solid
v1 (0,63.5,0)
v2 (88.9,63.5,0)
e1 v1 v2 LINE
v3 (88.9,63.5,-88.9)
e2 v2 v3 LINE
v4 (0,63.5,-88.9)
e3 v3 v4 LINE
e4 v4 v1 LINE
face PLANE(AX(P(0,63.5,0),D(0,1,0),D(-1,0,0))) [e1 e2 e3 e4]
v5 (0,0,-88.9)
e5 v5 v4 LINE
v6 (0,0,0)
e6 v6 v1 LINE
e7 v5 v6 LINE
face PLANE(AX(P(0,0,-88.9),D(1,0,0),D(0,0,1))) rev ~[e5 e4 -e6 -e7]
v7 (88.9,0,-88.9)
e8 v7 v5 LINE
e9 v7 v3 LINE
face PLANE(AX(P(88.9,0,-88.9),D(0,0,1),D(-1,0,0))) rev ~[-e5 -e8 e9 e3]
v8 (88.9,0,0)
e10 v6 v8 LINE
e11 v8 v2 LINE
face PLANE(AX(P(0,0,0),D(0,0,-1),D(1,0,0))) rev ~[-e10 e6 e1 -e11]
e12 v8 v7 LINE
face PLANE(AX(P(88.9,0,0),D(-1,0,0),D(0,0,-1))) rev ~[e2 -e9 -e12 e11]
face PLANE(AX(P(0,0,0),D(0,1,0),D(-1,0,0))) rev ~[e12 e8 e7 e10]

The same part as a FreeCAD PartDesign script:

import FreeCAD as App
import Part
import Sketcher

V = App.Vector
Q = App.Units.Quantity

doc = App.newDocument("Part")
body = doc.addObject("PartDesign::Body", "Body")

# Sketch on XZ plane
sketch1 = body.newObject("Sketcher::SketchObject", "Sketch")
sketch1.AttachmentSupport = (doc.getObject("XZ_Plane"), [""])
sketch1.MapMode = "FlatFace"
sketch1.addGeometry(Part.LineSegment(V(0, -88.9, 0), V(0, 0, 0)), False)
sketch1.addGeometry(Part.LineSegment(V(0, 0, 0), V(88.9, 0, 0)), False)
sketch1.addGeometry(Part.LineSegment(V(88.9, 0, 0), V(88.9, -88.9, 0)), False)
sketch1.addGeometry(Part.LineSegment(V(88.9, -88.9, 0), V(0, -88.9, 0)), False)
sketch1.addConstraint(Sketcher.Constraint("Coincident", 0, 2, 1, 1))
sketch1.addConstraint(Sketcher.Constraint("Coincident", 1, 2, 2, 1))
sketch1.addConstraint(Sketcher.Constraint("Coincident", 2, 2, 3, 1))
sketch1.addConstraint(Sketcher.Constraint("Coincident", 3, 2, 0, 1))
sketch1.addConstraint(Sketcher.Constraint("Vertical", 0))
sketch1.addConstraint(Sketcher.Constraint("Horizontal", 1))
sketch1.addConstraint(Sketcher.Constraint("Vertical", 2))
sketch1.addConstraint(Sketcher.Constraint("Horizontal", 3))
sketch1.addConstraint(Sketcher.Constraint("Coincident", 0, 2, -1, 1))
sketch1.addConstraint(Sketcher.Constraint("Equal", 3, 0))
sketch1.addConstraint(Sketcher.Constraint("DistanceX", 1, 1, 1, 2, Q("3.5 in")))
pad1 = body.newObject("PartDesign::Pad", "Pad")
pad1.Profile = sketch1
pad1.Length = Q("2.5 in")
pad1.Reversed = True

doc.recompute()
